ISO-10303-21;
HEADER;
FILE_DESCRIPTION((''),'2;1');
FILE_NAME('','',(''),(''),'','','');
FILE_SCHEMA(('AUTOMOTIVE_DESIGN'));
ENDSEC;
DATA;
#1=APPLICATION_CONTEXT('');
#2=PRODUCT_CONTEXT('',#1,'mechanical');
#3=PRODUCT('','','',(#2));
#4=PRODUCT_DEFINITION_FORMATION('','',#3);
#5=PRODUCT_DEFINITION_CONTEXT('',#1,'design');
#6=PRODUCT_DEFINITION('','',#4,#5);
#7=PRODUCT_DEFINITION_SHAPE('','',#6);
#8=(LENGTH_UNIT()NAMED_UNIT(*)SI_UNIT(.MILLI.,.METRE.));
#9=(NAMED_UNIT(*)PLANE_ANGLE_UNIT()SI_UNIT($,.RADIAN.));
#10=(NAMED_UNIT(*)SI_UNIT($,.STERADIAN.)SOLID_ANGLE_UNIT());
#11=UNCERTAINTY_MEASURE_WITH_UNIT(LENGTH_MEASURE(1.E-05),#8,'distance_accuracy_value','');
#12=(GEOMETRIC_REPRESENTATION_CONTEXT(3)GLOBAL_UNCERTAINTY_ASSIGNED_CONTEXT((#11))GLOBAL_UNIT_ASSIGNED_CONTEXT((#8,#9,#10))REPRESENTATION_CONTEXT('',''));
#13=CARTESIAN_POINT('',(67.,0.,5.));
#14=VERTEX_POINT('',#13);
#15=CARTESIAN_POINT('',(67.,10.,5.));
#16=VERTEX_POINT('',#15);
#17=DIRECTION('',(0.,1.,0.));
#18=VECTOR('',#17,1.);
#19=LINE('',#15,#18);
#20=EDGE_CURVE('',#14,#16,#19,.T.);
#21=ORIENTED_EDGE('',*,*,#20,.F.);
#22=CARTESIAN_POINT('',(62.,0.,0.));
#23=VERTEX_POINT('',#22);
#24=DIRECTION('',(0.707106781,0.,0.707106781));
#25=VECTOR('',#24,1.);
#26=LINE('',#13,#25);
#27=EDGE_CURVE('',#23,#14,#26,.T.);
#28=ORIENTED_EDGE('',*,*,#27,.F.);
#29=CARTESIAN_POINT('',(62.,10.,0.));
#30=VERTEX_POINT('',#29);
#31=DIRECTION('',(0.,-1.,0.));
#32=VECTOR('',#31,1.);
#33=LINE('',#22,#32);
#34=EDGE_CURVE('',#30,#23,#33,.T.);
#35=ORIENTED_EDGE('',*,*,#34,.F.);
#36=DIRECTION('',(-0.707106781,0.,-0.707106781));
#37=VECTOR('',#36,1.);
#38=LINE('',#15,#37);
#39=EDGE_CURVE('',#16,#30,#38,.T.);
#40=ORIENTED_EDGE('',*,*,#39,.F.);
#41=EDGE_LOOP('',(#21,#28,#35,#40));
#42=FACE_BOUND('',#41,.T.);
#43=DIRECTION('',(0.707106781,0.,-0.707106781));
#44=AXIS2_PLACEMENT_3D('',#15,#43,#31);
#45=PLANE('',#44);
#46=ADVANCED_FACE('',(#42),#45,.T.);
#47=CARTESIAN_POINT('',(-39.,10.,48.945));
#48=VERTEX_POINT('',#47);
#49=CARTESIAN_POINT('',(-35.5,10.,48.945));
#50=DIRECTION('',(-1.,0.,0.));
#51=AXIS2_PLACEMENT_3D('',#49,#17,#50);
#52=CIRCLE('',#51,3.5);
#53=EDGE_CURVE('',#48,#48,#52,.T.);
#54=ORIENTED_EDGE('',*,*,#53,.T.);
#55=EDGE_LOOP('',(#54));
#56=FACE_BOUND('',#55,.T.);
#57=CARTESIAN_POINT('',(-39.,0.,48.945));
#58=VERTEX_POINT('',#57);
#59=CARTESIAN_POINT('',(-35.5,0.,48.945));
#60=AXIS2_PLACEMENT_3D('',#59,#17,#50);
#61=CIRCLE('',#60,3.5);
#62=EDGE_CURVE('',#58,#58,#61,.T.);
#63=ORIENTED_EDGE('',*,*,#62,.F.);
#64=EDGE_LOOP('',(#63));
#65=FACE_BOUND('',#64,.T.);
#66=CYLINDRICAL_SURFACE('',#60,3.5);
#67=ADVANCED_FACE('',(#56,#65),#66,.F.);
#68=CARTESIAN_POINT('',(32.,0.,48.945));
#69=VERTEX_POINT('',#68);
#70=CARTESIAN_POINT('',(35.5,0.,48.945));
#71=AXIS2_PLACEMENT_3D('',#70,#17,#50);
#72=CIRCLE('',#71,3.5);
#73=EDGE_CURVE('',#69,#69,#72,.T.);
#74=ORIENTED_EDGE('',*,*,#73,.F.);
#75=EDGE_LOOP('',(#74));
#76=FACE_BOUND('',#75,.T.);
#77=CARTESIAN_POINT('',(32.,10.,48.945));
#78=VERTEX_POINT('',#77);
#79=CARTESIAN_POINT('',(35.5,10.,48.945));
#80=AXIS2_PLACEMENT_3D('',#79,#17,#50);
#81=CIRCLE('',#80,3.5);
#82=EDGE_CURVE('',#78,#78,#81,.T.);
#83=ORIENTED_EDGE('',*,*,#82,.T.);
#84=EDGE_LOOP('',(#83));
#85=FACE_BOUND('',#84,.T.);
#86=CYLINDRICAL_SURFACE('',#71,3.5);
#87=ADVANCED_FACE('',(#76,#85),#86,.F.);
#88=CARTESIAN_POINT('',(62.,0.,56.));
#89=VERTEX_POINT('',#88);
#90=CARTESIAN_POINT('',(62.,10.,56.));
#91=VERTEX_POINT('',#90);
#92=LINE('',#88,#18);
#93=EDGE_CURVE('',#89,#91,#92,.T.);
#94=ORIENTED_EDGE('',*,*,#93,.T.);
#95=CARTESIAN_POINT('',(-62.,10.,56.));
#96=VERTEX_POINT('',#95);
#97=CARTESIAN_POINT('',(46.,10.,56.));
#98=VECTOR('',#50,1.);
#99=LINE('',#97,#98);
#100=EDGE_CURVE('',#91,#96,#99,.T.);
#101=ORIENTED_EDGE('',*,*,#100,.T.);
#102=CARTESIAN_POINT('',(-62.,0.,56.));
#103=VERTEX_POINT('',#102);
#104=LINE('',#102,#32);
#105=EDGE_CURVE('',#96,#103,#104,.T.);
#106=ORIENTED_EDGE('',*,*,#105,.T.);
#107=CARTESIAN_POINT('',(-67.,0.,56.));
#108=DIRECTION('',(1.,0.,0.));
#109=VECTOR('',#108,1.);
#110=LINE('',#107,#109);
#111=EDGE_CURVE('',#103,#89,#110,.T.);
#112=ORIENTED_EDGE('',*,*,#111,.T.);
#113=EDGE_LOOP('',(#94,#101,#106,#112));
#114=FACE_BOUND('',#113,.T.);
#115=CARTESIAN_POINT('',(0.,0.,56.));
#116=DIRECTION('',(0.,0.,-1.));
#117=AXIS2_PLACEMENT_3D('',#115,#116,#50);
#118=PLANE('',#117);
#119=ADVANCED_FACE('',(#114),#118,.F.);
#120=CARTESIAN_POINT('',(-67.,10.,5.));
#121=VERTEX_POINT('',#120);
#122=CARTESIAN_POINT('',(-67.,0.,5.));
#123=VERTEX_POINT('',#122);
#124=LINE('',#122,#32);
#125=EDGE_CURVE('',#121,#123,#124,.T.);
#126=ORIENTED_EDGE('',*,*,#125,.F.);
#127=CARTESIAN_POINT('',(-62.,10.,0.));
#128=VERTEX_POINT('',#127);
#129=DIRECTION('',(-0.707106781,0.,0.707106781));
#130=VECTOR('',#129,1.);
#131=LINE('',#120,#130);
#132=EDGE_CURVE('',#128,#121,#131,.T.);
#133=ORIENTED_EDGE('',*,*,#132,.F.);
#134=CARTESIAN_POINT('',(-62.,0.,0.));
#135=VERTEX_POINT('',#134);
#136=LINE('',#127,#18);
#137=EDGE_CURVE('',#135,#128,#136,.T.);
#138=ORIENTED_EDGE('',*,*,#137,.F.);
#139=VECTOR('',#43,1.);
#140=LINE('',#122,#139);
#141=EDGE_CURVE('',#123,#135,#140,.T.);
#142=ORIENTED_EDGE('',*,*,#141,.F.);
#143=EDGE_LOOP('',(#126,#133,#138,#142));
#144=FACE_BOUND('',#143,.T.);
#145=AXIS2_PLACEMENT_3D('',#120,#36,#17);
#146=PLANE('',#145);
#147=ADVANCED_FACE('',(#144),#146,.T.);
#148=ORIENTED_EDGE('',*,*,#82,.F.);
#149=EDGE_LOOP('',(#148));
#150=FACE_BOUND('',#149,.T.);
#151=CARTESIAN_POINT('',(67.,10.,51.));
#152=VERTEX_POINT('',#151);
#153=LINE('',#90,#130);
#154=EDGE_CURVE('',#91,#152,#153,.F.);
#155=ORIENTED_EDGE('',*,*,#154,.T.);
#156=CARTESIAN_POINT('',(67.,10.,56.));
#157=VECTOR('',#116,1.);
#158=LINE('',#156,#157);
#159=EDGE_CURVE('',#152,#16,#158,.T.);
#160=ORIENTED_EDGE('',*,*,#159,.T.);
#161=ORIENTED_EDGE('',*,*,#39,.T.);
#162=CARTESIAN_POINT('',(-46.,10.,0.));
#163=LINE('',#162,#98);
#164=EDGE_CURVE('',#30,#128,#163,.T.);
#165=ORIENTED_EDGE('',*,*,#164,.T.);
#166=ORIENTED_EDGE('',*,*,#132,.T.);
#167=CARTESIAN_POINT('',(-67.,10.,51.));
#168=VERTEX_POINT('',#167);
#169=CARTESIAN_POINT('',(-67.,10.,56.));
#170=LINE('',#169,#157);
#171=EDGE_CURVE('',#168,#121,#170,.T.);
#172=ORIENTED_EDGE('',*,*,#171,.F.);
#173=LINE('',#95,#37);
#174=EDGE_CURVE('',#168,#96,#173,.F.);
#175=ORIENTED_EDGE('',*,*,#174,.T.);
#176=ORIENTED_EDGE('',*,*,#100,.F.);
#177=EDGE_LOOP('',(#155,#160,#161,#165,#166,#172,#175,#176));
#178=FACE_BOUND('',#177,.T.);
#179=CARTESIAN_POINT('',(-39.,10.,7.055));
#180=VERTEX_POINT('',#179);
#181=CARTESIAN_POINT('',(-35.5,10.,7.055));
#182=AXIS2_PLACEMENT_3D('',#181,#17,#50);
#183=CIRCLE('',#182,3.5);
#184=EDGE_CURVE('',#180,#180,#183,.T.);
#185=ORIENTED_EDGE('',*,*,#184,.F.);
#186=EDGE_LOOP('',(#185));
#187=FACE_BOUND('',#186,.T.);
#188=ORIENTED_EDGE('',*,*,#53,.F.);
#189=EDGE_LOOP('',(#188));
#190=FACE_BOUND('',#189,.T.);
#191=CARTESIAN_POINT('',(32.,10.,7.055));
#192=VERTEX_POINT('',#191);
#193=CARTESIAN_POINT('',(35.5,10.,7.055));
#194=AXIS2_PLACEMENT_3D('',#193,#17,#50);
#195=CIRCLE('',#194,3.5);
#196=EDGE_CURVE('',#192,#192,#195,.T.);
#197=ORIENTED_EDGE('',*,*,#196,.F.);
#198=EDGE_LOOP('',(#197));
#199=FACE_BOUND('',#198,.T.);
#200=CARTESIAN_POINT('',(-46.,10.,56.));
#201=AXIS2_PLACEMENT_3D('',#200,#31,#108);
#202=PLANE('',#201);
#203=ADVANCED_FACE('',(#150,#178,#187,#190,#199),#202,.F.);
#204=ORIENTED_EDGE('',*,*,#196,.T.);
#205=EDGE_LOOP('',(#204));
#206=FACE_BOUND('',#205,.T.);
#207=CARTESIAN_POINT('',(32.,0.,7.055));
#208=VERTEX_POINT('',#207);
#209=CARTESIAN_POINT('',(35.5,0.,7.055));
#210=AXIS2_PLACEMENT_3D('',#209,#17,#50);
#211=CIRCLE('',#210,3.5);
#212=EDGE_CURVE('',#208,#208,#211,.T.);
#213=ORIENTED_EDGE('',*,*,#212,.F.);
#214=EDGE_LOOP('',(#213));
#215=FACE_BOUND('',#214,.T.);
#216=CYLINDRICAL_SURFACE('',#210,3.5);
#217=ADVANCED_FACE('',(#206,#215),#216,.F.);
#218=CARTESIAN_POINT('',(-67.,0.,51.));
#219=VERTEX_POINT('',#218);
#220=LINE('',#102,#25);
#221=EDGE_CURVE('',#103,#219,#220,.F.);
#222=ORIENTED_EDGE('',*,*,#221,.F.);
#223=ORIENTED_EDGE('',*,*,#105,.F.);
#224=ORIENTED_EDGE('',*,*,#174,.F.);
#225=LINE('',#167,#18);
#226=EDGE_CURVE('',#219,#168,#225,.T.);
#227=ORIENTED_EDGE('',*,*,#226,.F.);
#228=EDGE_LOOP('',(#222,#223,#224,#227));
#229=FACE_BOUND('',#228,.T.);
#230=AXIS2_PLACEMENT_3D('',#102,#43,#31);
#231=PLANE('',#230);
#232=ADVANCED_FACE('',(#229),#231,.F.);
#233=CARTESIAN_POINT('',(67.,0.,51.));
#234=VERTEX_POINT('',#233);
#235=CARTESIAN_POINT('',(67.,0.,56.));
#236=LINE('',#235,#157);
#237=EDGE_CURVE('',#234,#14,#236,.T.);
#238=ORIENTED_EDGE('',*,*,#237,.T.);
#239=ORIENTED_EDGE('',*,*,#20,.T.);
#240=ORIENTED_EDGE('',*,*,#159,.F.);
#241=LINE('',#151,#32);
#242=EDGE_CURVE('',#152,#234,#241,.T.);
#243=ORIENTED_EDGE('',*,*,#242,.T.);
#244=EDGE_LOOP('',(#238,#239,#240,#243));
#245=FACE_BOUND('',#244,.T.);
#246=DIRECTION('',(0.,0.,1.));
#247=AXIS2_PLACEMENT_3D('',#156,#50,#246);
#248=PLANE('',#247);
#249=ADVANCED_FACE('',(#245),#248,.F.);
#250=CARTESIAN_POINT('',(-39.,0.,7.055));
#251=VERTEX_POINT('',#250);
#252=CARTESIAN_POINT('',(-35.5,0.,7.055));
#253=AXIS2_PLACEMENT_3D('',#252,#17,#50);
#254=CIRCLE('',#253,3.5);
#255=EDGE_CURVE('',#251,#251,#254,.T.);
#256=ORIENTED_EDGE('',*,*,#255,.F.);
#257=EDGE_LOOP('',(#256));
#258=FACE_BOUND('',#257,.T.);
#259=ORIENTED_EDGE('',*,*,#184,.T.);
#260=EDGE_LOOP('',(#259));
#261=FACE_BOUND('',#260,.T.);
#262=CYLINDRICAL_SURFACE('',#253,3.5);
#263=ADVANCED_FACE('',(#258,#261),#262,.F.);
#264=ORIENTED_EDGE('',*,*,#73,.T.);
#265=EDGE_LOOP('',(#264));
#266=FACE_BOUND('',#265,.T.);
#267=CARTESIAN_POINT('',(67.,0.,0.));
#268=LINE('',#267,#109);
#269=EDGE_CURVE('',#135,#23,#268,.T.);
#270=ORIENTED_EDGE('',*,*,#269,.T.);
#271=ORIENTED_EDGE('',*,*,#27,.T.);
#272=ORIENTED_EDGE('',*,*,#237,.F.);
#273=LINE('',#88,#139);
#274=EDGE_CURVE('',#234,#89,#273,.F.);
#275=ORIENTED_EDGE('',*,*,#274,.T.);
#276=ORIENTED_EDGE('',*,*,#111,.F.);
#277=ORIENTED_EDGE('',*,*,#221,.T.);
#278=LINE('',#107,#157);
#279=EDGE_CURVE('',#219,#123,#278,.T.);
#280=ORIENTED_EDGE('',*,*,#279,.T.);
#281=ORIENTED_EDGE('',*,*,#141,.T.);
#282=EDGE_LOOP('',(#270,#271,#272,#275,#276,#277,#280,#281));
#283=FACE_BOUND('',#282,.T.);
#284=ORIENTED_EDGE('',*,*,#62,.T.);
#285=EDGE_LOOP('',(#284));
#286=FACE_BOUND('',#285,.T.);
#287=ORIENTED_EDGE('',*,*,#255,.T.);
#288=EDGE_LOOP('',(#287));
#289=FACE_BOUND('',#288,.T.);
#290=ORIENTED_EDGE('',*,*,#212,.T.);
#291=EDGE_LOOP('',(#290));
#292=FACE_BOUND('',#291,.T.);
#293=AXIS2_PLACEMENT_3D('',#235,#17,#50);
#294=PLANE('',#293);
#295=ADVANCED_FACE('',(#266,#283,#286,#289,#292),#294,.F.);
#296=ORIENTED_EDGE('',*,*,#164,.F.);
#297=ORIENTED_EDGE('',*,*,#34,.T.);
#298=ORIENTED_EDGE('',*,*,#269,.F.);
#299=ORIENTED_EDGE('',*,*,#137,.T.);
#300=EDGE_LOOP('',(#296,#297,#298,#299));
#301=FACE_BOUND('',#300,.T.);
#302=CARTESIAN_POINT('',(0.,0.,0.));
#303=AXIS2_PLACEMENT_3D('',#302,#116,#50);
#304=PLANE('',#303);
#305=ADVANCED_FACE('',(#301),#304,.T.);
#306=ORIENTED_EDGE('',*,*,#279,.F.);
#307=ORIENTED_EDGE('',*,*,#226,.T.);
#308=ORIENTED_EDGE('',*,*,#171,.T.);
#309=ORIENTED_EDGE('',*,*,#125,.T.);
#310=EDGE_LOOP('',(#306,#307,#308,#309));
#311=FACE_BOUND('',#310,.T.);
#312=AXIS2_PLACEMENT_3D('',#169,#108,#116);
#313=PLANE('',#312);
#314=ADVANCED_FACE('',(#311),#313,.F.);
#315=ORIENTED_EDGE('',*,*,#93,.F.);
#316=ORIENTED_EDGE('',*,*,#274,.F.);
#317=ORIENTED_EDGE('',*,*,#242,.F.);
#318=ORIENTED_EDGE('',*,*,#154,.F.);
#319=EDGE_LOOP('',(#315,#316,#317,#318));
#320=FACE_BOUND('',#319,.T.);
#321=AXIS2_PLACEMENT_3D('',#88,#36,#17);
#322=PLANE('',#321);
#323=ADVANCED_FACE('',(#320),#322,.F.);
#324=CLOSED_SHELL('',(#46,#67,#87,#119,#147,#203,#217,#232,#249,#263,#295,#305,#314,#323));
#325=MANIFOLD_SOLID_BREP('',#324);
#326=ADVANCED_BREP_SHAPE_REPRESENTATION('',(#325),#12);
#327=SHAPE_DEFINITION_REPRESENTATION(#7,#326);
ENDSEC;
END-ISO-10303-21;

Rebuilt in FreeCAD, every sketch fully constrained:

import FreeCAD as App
import Part
import Sketcher

V = App.Vector


def edges_at(feature, points):
    """Names of the edges that pass closest to the given points."""
    edges = feature.Shape.Edges
    near = lambda p: min(range(len(edges)), key=lambda i: edges[i].distToShape(Part.Vertex(*p))[0])
    return sorted({f"Edge{near(p) + 1}" for p in points})

doc = App.newDocument("Part")
params = doc.addObject("Spreadsheet::Sheet", "Params")
for row, (alias, value) in enumerate([
    ("sketch1_width", "134 mm"),
    ("sketch1_height", "10 mm"),
    ("pad1_length", "56 mm"),
    ("sketch2_diameter", "7 mm"),
    ("pocket1_length", "10 mm"),
    ("chamfer_size", "5 mm"),
], start=1):
    params.set(f"A{row}", alias)
    params.set(f"B{row}", "=" + value)
    params.setAlias(f"B{row}", alias)

body = doc.addObject("PartDesign::Body", "Body")

sketch1 = doc.addObject("Sketcher::SketchObject", "Sketch")
body.addObject(sketch1)
sketch1.AttachmentSupport = (doc.XY_Plane, [""])
sketch1.MapMode = "FlatFace"
sketch1.addGeometry(Part.LineSegment(V(-67, 10, 0), V(-67, 0, 0)), False)
sketch1.addGeometry(Part.LineSegment(V(-67, 0, 0), V(67, 0, 0)), False)
sketch1.addGeometry(Part.LineSegment(V(67, 0, 0), V(67, 10, 0)), False)
sketch1.addGeometry(Part.LineSegment(V(67, 10, 0), V(-67, 10, 0)), False)
sketch1.addConstraint(Sketcher.Constraint("Coincident", 0, 2, 1, 1))
sketch1.addConstraint(Sketcher.Constraint("Coincident", 1, 2, 2, 1))
sketch1.addConstraint(Sketcher.Constraint("Coincident", 2, 2, 3, 1))
sketch1.addConstraint(Sketcher.Constraint("Coincident", 3, 2, 0, 1))
sketch1.addConstraint(Sketcher.Constraint("Vertical", 0))
sketch1.addConstraint(Sketcher.Constraint("Horizontal", 1))
sketch1.addConstraint(Sketcher.Constraint("Vertical", 2))
sketch1.addConstraint(Sketcher.Constraint("Horizontal", 3))
sketch1.addConstraint(Sketcher.Constraint("Symmetric", 0, 2, 1, 2, -1, 1))
sketch1.addConstraint(Sketcher.Constraint("DistanceX", 1, 1, 1, 2, 134.0))
sketch1.addConstraint(Sketcher.Constraint("DistanceY", 0, 2, 0, 1, 10.0))
sketch1.setExpression("Constraints[9]", "Params.sketch1_width")
sketch1.setExpression("Constraints[10]", "Params.sketch1_height")
pad1 = doc.addObject("PartDesign::Pad", "Pad")
body.addObject(pad1)
pad1.Profile = sketch1
pad1.setExpression("Length", "Params.pad1_length")

sketch2 = doc.addObject("Sketcher::SketchObject", "Sketch001")
body.addObject(sketch2)
sketch2.AttachmentSupport = (doc.XZ_Plane, [""])
sketch2.MapMode = "FlatFace"
sketch2.AttachmentOffset = App.Placement(V(0, 0, -10), App.Rotation())
sketch2.addGeometry(Part.Circle(V(-35.5, 7.1, 0), V(0, 0, 1), 3.5), False)
sketch2.addGeometry(Part.Circle(V(35.5, 7.1, 0), V(0, 0, 1), 3.5), False)
sketch2.addGeometry(Part.Circle(V(-35.5, 48.9, 0), V(0, 0, 1), 3.5), False)
sketch2.addGeometry(Part.Circle(V(35.5, 48.9, 0), V(0, 0, 1), 3.5), False)
sketch2.addConstraint(Sketcher.Constraint("Equal", 0, 1))
sketch2.addConstraint(Sketcher.Constraint("Equal", 1, 2))
sketch2.addConstraint(Sketcher.Constraint("Equal", 2, 3))
sketch2.addConstraint(Sketcher.Constraint("Symmetric", 0, 3, 1, 3, -2))
sketch2.addConstraint(Sketcher.Constraint("Symmetric", 2, 3, 3, 3, -2))
sketch2.addConstraint(Sketcher.Constraint("Vertical", 0, 3, 2, 3))
sketch2.addConstraint(Sketcher.Constraint("Diameter", 0, 7.0))
sketch2.addConstraint(Sketcher.Constraint("DistanceX", 0, 3, 1, 3, 71.0))
sketch2.addConstraint(Sketcher.Constraint("DistanceY", 0, 3, 2, 3, 41.89))
sketch2.addConstraint(Sketcher.Constraint("DistanceY", -1, 1, 0, 3, 7.055))
sketch2.setExpression("Constraints[6]", "Params.sketch2_diameter")
pocket1 = doc.addObject("PartDesign::Pocket", "Pocket")
body.addObject(pocket1)
pocket1.Profile = sketch2
pocket1.setExpression("Length", "Params.pocket1_length")
pocket1.Reversed = True
doc.recompute()

chamfer = doc.addObject("PartDesign::Chamfer", "Chamfer")
body.addObject(chamfer)
chamfer.Base = (pocket1, edges_at(pocket1, [
    (67, 5, 0),
    (-67, 5, 56),
    (67, 5, 56),
    (-67, 5, 0),
]))
chamfer.setExpression("Size", "Params.chamfer_size")

doc.recompute()
